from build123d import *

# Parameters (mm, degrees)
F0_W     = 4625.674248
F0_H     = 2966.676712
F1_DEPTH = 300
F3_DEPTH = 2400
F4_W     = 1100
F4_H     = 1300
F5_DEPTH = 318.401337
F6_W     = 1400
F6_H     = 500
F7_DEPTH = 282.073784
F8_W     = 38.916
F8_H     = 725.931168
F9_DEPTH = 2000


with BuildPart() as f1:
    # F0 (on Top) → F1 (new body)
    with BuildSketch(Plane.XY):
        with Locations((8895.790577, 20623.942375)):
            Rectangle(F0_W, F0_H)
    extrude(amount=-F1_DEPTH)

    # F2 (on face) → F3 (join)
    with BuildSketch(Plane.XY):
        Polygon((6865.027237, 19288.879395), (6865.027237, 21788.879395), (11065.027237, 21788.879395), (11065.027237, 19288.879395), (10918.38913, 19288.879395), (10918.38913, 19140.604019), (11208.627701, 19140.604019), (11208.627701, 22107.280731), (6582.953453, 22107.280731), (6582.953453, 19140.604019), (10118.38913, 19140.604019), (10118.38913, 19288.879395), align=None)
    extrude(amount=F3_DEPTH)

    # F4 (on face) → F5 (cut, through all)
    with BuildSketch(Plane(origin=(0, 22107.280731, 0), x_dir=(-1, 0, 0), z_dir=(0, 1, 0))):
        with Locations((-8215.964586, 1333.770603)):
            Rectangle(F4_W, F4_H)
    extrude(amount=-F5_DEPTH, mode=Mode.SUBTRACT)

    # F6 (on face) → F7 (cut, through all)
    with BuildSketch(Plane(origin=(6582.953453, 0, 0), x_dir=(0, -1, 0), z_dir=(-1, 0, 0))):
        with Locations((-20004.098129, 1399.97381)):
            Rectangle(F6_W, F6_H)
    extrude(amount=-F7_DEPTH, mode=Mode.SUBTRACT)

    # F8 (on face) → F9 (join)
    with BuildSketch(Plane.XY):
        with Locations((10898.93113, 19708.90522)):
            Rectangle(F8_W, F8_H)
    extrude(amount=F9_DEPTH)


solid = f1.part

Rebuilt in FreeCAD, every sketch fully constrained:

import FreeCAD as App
import Part
import Sketcher

V = App.Vector


def add_polygon(sketch, points):
    """Adds a closed chain of lines whose ends are joined by coincident constraints."""
    first, n = sketch.GeometryCount, len(points)
    for a, b in zip(points, points[1:] + points[:1]):
        sketch.addGeometry(Part.LineSegment(App.Vector(*a, 0), App.Vector(*b, 0)), False)
    for i in range(n):
        sketch.addConstraint(Sketcher.Constraint("Coincident", first + i, 2, first + (i + 1) % n, 1))

doc = App.newDocument("Part")
params = doc.addObject("Spreadsheet::Sheet", "Params")
for row, (alias, value) in enumerate([
    ("pad1_length", "300 mm"),
    ("sketch2_width", "4200 mm"),
    ("sketch2_height", "2500 mm"),
    ("pad2_length", "2400 mm"),
    ("sketch3_width", "1100 mm"),
    ("sketch3_height", "1300 mm"),
    ("pocket1_length", "318.401337 mm"),
    ("sketch4_width", "1400 mm"),
    ("sketch4_height", "500 mm"),
    ("pocket2_length", "282.073784 mm"),
    ("pad3_length", "2000 mm"),
], start=1):
    params.set(f"A{row}", alias)
    params.set(f"B{row}", "=" + value)
    params.setAlias(f"B{row}", alias)

body = doc.addObject("PartDesign::Body", "Body")

# Sketch on XY plane
sketch1 = body.newObject("Sketcher::SketchObject", "Sketch")
sketch1.AttachmentSupport = (doc.getObject("XY_Plane"), [""])
sketch1.MapMode = "FlatFace"
add_polygon(sketch1, [(6582.953453, 22107.280731), (6582.953453, 19140.604019), (11208.627701, 19140.604019), (11208.627701, 22107.280731)])  # lines 0-3
sketch1.addConstraint([
    Sketcher.Constraint("Vertical", 0),
    Sketcher.Constraint("Horizontal", 1),
    Sketcher.Constraint("Vertical", 2),
    Sketcher.Constraint("Horizontal", 3),
    Sketcher.Constraint("DistanceX", -1, 1, 1, 2, 11208.627701),
    Sketcher.Constraint("DistanceX", 1, 1, 1, 2, 4625.674248),
    Sketcher.Constraint("DistanceY", 0, 2, 0, 1, 2966.676712),
    Sketcher.Constraint("DistanceY", -1, 1, 0, 2, 19140.604019),
])
pad1 = body.newObject("PartDesign::Pad", "Pad")
pad1.Profile = sketch1
pad1.setExpression("Length", "Params.pad1_length")
pad1.Reversed = True

# Sketch on XY plane
sketch2 = body.newObject("Sketcher::SketchObject", "Sketch001")
sketch2.AttachmentSupport = (doc.getObject("XY_Plane"), [""])
sketch2.MapMode = "FlatFace"
add_polygon(sketch2, [(6865.027237, 19288.879395), (6865.027237, 21788.879395), (11065.027237, 21788.879395), (11065.027237, 19288.879395), (10918.38913, 19288.879395), (10918.38913, 19140.604019), (11208.627701, 19140.604019), (11208.627701, 22107.280731), (6582.953453, 22107.280731), (6582.953453, 19140.604019), (10118.38913, 19140.604019), (10118.38913, 19288.879395)])  # lines 0-11
sketch2.addConstraint([
    Sketcher.Constraint("Vertical", 0),
    Sketcher.Constraint("Horizontal", 1),
    Sketcher.Constraint("Vertical", 2),
    Sketcher.Constraint("Horizontal", 3),
    Sketcher.Constraint("Vertical", 4),
    Sketcher.Constraint("Horizontal", 5),
    Sketcher.Constraint("Vertical", 6),
    Sketcher.Constraint("Horizontal", 7),
    Sketcher.Constraint("Vertical", 8),
    Sketcher.Constraint("Horizontal", 9),
    Sketcher.Constraint("Vertical", 10),
    Sketcher.Constraint("Horizontal", 11),
    Sketcher.Constraint("Horizontal", 5, 2, 8, 2),
    Sketcher.Constraint("Horizontal", 3, 2, 10, 2),
    Sketcher.Constraint("DistanceX", 1, 1, 1, 2, 4200.0),
    Sketcher.Constraint("DistanceY", 0, 1, 0, 2, 2500.0),
    Sketcher.Constraint("DistanceX", 9, 2, 4, 2, 800.0),
    Sketcher.Constraint("DistanceX", 5, 1, 5, 2, 290.238571),
    Sketcher.Constraint("DistanceX", -1, 1, 5, 2, 11208.627701),
    Sketcher.Constraint("DistanceX", 3, 2, 3, 1, 146.638107),
    Sketcher.Constraint("DistanceX", 7, 2, 7, 1, 4625.674248),
    Sketcher.Constraint("DistanceY", 4, 2, 4, 1, 148.275376),
    Sketcher.Constraint("DistanceY", 6, 1, 6, 2, 2966.676712),
    Sketcher.Constraint("DistanceY", -1, 1, 4, 2, 19140.604019),
])
sketch2.setExpression("Constraints[26]", "Params.sketch2_width")
sketch2.setExpression("Constraints[27]", "Params.sketch2_height")
pad2 = body.newObject("PartDesign::Pad", "Pad001")
pad2.Profile = sketch2
pad2.setExpression("Length", "Params.pad2_length")

# Sketch on XZ plane
sketch3 = body.newObject("Sketcher::SketchObject", "Sketch002")
sketch3.AttachmentSupport = (doc.getObject("XZ_Plane"), [""])
sketch3.MapMode = "FlatFace"
sketch3.AttachmentOffset = App.Placement(V(0, 0, -22107.280731), App.Rotation())
add_polygon(sketch3, [(8765.964586, 1983.770603), (8765.964586, 683.770603), (7665.964586, 683.770603), (7665.964586, 1983.770603)])  # lines 0-3
sketch3.addConstraint([
    Sketcher.Constraint("Vertical", 0),
    Sketcher.Constraint("Horizontal", 1),
    Sketcher.Constraint("Vertical", 2),
    Sketcher.Constraint("Horizontal", 3),
    Sketcher.Constraint("DistanceX", 1, 2, 1, 1, 1100.0),
    Sketcher.Constraint("DistanceY", 0, 2, 0, 1, 1300.0),
    Sketcher.Constraint("DistanceX", -1, 1, 0, 2, 8765.964586),
    Sketcher.Constraint("DistanceY", -1, 1, 0, 2, 683.770603),
])
sketch3.setExpression("Constraints[8]", "Params.sketch3_width")
sketch3.setExpression("Constraints[9]", "Params.sketch3_height")
pocket1 = body.newObject("PartDesign::Pocket", "Pocket")
pocket1.Profile = sketch3
pocket1.setExpression("Length", "Params.pocket1_length")
pocket1.Reversed = True

# Sketch on YZ plane
sketch4 = body.newObject("Sketcher::SketchObject", "Sketch003")
sketch4.AttachmentSupport = (doc.getObject("YZ_Plane"), [""])
sketch4.MapMode = "FlatFace"
sketch4.AttachmentOffset = App.Placement(V(0, 0, 6582.953453), App.Rotation())
add_polygon(sketch4, [(20704.098129, 1649.97381), (20704.098129, 1149.97381), (19304.098129, 1149.97381), (19304.098129, 1649.97381)])  # lines 0-3
sketch4.addConstraint([
    Sketcher.Constraint("Vertical", 0),
    Sketcher.Constraint("Horizontal", 1),
    Sketcher.Constraint("Vertical", 2),
    Sketcher.Constraint("Horizontal", 3),
    Sketcher.Constraint("DistanceX", 1, 2, 1, 1, 1400.0),
    Sketcher.Constraint("DistanceY", 0, 2, 0, 1, 500.0),
    Sketcher.Constraint("DistanceX", -1, 1, 0, 2, 20704.098129),
    Sketcher.Constraint("DistanceY", -1, 1, 0, 2, 1149.97381),
])
sketch4.setExpression("Constraints[8]", "Params.sketch4_width")
sketch4.setExpression("Constraints[9]", "Params.sketch4_height")
pocket2 = body.newObject("PartDesign::Pocket", "Pocket001")
pocket2.Profile = sketch4
pocket2.setExpression("Length", "Params.pocket2_length")
pocket2.Reversed = True

# Sketch on XY plane
sketch5 = body.newObject("Sketcher::SketchObject", "Sketch004")
sketch5.AttachmentSupport = (doc.getObject("XY_Plane"), [""])
sketch5.MapMode = "FlatFace"
add_polygon(sketch5, [(10879.47313, 20071.870804), (10879.47313, 19345.939636), (10918.38913, 19345.939636), (10918.38913, 20071.870804)])  # lines 0-3
sketch5.addConstraint([
    Sketcher.Constraint("Vertical", 0),
    Sketcher.Constraint("Horizontal", 1),
    Sketcher.Constraint("Vertical", 2),
    Sketcher.Constraint("Horizontal", 3),
    Sketcher.Constraint("DistanceX", 1, 1, 1, 2, 38.916),
    Sketcher.Constraint("DistanceY", 0, 2, 0, 1, 725.931168),
    Sketcher.Constraint("DistanceX", -1, 1, 0, 2, 10879.47313),
    Sketcher.Constraint("DistanceY", -1, 1, 0, 2, 19345.939636),
])
pad3 = body.newObject("PartDesign::Pad", "Pad002")
pad3.Profile = sketch5
pad3.setExpression("Length", "Params.pad3_length")

doc.recompute()
